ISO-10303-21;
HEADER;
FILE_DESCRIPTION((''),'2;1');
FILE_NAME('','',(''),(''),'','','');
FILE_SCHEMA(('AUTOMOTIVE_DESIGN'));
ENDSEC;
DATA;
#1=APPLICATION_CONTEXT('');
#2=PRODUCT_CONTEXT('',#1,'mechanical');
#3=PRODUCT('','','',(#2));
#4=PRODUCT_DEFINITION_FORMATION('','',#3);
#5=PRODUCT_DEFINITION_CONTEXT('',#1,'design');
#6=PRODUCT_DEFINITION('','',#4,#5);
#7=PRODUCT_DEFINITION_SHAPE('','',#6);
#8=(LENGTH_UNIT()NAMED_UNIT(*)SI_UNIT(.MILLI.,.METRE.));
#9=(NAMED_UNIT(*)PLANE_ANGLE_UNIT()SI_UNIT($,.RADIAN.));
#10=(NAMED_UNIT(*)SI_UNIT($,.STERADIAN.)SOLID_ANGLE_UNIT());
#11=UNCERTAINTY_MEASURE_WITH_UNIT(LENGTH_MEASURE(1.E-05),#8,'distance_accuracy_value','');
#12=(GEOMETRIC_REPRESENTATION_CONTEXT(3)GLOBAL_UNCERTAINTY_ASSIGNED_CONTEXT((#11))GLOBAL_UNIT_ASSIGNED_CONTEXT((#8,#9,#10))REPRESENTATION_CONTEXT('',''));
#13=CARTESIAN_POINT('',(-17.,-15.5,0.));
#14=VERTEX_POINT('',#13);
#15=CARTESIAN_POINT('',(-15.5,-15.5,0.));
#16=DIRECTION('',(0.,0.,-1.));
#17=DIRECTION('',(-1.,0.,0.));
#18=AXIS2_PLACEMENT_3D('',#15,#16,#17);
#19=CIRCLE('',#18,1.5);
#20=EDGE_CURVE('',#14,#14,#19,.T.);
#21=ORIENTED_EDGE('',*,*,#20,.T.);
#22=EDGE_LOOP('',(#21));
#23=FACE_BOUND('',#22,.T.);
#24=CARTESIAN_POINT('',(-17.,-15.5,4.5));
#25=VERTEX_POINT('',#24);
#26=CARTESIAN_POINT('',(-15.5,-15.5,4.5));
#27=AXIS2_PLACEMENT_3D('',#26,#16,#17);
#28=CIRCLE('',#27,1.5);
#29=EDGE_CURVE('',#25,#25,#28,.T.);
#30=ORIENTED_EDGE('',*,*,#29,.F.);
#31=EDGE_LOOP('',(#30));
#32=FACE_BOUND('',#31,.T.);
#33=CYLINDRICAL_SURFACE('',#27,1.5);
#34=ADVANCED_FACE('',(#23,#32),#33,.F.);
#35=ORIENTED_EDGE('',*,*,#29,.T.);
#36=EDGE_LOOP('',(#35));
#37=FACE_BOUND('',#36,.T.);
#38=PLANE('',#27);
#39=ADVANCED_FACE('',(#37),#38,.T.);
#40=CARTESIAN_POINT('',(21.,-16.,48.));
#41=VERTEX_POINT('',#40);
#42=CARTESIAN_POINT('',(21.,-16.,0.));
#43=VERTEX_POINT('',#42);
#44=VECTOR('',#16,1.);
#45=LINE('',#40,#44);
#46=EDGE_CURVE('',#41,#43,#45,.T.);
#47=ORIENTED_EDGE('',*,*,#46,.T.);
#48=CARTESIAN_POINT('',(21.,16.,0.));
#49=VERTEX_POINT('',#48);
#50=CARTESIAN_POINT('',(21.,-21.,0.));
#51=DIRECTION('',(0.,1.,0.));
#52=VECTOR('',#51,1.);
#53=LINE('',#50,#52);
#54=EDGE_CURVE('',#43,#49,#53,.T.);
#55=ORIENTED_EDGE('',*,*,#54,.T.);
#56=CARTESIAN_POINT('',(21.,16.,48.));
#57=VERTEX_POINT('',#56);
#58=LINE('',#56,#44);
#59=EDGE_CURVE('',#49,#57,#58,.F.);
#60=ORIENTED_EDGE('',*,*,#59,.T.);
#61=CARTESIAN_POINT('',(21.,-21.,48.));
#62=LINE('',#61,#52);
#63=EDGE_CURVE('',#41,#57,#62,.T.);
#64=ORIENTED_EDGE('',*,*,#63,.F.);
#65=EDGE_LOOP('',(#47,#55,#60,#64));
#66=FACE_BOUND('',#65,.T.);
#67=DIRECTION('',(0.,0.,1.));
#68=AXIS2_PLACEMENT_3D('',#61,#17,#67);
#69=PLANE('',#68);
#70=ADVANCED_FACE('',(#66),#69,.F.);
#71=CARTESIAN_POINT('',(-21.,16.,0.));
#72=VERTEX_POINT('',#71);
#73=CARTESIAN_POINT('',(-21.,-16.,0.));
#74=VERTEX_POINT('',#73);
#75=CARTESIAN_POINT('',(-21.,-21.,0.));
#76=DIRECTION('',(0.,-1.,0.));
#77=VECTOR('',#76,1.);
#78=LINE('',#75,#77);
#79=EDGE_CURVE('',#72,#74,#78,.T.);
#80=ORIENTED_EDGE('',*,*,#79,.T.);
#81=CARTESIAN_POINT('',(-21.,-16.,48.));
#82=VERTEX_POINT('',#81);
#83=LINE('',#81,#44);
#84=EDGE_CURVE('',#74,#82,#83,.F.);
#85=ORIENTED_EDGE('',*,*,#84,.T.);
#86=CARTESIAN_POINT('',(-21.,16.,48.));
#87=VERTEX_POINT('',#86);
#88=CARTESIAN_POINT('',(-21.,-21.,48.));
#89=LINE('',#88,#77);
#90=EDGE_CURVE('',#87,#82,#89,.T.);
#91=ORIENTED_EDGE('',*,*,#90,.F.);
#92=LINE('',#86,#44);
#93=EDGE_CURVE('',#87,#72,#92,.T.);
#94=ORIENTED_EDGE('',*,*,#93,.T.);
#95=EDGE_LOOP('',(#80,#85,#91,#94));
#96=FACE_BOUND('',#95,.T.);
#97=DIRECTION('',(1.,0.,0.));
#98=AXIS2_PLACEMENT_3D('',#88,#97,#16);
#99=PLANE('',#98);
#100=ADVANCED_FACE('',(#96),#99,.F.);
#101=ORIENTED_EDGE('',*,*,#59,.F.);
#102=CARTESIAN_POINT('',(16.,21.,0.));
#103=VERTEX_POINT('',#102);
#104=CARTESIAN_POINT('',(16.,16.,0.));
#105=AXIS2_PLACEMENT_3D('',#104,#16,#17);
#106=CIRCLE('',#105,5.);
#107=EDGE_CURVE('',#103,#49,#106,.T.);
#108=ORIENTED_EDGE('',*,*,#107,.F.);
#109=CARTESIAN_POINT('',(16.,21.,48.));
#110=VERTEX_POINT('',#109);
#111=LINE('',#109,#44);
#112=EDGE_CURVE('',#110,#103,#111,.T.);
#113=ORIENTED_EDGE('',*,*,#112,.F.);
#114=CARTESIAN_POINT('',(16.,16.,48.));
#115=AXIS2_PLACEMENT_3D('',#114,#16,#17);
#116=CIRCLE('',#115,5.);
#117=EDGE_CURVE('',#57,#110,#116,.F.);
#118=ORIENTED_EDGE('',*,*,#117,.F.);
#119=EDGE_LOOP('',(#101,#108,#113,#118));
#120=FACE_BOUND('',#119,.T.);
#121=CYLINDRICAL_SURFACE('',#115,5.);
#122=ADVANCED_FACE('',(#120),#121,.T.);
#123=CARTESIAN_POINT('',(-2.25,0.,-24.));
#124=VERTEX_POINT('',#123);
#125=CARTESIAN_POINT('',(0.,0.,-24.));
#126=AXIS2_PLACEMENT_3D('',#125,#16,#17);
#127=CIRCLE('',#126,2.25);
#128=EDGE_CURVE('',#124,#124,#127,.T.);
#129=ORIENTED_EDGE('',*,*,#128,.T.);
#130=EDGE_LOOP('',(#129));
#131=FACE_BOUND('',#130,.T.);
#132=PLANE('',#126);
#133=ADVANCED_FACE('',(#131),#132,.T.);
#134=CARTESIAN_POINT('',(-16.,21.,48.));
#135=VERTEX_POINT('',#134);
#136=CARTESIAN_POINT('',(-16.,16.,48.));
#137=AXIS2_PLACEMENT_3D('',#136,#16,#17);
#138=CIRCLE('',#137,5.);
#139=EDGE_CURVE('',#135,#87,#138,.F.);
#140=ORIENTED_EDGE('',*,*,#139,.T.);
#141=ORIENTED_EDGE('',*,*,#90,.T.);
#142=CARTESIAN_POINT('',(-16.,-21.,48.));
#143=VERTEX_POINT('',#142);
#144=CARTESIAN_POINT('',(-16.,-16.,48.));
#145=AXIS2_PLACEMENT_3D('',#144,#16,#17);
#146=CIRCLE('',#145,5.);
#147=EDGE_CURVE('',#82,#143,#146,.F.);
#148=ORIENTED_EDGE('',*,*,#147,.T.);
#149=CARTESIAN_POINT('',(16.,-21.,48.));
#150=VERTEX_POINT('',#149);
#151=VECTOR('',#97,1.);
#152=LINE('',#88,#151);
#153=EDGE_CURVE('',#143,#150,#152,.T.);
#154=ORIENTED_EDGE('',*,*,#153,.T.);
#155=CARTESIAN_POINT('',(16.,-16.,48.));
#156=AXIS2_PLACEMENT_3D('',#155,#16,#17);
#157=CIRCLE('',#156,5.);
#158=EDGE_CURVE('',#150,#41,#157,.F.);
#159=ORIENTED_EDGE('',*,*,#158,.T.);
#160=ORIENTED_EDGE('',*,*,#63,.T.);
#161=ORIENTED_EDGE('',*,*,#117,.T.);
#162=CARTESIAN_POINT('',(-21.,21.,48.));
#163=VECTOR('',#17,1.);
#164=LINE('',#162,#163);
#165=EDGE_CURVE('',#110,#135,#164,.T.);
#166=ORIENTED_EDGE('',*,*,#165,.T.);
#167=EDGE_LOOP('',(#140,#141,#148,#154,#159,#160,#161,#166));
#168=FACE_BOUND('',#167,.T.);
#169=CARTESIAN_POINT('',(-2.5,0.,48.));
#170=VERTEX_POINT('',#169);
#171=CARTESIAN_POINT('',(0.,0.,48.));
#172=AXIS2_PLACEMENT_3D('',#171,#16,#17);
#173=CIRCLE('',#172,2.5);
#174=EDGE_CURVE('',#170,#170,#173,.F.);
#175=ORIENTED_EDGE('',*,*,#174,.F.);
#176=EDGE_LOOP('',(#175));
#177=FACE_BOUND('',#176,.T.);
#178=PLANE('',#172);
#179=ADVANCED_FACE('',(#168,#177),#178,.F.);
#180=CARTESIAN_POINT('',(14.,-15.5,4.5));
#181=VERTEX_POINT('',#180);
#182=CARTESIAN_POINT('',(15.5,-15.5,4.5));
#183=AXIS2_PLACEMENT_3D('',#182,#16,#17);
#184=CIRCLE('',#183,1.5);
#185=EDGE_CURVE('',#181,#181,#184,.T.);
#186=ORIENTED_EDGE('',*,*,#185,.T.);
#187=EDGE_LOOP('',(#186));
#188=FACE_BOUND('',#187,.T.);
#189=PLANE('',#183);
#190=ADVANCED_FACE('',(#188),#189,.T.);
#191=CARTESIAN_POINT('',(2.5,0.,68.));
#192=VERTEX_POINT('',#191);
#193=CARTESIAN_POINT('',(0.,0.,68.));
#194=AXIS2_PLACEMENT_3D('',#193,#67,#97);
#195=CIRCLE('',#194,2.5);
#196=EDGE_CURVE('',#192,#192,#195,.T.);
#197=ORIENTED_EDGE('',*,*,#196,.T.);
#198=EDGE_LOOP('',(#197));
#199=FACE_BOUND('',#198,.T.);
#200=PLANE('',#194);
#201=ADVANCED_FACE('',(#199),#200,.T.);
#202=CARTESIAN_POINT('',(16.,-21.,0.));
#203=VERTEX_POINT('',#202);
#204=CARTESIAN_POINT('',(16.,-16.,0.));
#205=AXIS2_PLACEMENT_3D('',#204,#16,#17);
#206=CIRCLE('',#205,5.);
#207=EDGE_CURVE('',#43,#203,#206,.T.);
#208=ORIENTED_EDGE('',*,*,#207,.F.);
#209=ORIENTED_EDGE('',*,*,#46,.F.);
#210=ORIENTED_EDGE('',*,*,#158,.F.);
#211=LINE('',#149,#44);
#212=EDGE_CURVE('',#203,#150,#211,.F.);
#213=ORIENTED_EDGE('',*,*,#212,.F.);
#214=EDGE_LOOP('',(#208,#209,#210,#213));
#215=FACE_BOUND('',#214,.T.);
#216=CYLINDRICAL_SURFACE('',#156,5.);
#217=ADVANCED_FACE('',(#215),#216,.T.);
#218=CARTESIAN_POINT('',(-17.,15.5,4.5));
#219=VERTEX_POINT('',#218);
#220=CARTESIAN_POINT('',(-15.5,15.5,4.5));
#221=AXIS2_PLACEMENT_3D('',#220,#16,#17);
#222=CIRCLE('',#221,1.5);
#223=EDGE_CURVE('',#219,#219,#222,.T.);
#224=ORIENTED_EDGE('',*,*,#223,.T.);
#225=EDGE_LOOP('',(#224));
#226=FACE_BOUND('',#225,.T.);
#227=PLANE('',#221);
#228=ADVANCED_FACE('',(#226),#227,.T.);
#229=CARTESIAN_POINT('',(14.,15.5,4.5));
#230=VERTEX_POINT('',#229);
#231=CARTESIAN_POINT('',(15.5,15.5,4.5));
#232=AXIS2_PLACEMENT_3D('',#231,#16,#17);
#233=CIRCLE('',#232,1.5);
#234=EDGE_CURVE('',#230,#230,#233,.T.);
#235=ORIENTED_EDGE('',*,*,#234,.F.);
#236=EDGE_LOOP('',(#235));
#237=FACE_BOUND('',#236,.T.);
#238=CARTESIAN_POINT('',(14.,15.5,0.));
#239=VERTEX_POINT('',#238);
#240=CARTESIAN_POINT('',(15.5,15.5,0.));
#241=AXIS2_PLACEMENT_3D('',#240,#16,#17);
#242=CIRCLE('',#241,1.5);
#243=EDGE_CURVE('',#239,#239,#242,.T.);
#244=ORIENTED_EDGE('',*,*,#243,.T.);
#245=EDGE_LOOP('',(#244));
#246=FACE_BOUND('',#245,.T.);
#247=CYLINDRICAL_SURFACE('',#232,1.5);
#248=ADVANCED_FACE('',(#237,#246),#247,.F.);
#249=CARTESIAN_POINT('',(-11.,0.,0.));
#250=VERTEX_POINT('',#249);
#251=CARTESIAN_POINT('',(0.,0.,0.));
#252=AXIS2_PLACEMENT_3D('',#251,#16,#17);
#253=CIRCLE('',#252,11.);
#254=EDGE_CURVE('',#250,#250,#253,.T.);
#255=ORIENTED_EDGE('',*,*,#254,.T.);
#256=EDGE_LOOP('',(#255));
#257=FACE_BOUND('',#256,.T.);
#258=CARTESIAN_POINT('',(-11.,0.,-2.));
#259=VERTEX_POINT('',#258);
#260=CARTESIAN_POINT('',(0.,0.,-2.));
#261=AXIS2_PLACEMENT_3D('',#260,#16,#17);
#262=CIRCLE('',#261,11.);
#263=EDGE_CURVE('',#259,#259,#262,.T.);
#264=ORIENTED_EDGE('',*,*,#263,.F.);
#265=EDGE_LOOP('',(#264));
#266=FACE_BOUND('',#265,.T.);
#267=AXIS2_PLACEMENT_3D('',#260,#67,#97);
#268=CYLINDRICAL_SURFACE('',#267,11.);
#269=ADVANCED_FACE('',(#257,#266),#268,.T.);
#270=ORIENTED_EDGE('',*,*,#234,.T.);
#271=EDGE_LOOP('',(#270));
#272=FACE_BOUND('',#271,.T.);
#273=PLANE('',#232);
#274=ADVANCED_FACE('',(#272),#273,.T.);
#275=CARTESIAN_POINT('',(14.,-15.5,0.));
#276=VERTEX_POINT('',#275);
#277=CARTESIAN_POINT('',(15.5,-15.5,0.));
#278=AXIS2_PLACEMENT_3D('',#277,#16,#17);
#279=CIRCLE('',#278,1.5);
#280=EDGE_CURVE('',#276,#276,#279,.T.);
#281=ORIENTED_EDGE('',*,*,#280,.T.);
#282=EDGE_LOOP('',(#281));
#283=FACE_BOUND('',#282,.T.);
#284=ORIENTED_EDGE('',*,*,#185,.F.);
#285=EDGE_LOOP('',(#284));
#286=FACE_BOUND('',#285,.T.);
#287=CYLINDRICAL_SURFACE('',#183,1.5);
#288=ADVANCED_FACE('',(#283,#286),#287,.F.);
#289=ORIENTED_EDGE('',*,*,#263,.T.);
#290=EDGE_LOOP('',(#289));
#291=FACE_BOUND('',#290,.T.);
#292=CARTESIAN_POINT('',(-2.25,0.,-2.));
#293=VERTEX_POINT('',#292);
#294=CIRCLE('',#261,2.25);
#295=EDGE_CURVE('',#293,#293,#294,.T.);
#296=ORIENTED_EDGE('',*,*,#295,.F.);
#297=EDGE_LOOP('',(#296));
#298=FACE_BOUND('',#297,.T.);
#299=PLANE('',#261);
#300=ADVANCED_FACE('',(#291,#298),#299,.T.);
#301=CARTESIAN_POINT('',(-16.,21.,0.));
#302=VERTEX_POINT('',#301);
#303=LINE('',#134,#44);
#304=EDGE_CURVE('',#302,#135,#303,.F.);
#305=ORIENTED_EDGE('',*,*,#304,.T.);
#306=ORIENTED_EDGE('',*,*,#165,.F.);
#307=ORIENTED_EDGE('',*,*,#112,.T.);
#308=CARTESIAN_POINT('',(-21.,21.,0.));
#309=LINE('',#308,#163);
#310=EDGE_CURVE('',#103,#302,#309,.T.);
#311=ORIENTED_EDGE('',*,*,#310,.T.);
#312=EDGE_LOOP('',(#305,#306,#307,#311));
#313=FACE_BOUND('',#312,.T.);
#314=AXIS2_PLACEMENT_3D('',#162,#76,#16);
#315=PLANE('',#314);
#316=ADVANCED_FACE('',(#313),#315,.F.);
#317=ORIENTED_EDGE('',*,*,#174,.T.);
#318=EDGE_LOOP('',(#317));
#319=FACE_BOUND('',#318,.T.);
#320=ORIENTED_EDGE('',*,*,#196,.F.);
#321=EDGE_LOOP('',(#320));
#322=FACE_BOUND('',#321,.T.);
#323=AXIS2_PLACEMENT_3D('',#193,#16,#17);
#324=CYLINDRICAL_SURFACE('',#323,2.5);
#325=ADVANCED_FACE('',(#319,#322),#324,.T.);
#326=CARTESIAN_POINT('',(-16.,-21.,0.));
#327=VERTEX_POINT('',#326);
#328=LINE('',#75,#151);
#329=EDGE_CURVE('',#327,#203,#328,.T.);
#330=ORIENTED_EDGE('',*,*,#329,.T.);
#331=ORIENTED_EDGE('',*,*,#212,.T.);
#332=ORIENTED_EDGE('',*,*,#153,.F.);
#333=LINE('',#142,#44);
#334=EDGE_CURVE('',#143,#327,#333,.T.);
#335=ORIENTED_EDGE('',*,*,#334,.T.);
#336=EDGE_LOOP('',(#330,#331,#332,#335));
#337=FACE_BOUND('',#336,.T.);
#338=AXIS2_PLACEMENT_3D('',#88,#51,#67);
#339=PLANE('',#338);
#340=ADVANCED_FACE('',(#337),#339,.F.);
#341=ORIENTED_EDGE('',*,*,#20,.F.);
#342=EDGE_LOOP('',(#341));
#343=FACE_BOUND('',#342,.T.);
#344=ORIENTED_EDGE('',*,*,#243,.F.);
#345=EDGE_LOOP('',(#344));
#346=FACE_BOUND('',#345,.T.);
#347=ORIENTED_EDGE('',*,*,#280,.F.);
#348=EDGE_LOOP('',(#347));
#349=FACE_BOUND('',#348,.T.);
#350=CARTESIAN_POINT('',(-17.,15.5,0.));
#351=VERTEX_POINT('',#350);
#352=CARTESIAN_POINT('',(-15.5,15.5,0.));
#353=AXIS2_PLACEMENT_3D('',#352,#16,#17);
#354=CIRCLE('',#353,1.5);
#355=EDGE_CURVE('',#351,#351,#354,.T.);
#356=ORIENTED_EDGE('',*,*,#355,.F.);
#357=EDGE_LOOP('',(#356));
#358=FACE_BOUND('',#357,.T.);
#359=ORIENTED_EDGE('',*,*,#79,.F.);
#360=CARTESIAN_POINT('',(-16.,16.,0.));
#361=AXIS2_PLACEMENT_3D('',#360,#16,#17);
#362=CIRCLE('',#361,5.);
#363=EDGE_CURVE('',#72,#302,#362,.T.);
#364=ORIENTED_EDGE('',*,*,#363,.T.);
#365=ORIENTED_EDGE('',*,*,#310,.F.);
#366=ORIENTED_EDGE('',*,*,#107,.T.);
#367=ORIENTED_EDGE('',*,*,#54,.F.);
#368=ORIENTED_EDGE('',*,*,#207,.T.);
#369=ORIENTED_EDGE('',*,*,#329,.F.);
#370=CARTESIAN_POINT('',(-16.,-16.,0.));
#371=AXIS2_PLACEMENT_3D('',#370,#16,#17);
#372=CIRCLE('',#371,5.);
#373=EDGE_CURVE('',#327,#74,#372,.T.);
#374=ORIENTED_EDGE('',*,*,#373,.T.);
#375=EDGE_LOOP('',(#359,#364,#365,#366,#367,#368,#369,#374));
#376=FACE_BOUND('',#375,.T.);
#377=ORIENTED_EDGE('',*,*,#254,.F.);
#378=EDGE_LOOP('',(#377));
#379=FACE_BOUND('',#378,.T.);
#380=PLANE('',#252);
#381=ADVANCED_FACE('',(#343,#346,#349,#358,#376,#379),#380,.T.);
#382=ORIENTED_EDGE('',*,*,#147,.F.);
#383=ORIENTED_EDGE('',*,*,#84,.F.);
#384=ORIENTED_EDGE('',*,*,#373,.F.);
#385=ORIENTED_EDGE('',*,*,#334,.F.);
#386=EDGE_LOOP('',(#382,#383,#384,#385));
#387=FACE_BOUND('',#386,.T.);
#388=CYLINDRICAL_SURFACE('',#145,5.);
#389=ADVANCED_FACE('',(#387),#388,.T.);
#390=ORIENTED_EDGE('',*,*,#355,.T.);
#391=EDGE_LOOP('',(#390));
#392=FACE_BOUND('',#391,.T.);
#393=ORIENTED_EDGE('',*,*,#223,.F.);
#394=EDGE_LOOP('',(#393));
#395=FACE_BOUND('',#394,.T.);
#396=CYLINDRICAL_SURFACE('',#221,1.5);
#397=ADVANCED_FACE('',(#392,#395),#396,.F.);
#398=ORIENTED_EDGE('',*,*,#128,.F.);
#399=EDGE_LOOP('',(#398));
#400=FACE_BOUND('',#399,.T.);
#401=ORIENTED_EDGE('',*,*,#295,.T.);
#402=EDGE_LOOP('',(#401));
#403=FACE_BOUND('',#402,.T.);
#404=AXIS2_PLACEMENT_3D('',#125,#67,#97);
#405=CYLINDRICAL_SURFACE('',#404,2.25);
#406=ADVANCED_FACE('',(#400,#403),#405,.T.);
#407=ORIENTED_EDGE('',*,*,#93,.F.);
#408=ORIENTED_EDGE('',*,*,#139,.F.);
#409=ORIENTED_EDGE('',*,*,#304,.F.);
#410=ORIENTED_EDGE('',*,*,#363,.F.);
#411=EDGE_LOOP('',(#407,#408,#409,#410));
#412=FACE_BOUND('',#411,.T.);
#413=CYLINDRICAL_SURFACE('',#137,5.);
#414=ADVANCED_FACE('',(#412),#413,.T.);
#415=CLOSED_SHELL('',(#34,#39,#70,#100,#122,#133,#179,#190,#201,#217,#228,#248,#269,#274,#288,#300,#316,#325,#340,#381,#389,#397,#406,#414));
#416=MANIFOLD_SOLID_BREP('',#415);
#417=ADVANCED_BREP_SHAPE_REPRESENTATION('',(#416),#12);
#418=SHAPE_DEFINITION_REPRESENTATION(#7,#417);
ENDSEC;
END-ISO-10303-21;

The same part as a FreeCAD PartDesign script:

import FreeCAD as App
import Part
import Sketcher
from FreeCAD import Vector


def edges_at(feature, points):
    """Names of the edges that pass closest to the given points."""
    edges = feature.Shape.Edges
    near = lambda p: min(range(len(edges)), key=lambda i: edges[i].distToShape(Part.Vertex(*p))[0])
    return sorted({f"Edge{near(p) + 1}" for p in points})


def add_polygon(sketch, points):
    """Adds a closed chain of lines whose ends are joined by coincident constraints."""
    first, n = sketch.GeometryCount, len(points)
    for a, b in zip(points, points[1:] + points[:1]):
        sketch.addGeometry(Part.LineSegment(App.Vector(*a, 0), App.Vector(*b, 0)), False)
    for i in range(n):
        sketch.addConstraint(Sketcher.Constraint("Coincident", first + i, 2, first + (i + 1) % n, 1))

doc = App.newDocument("Part")
params = doc.addObject("Spreadsheet::Sheet", "Params")
for row, (alias, value) in enumerate([
    ("sketch1_width", "42 mm"),
    ("pad1_length", "48 mm"),
    ("sketch2_diameter", "22 mm"),
    ("pad2_length", "2 mm"),
    ("sketch3_diameter", "4.5 mm"),
    ("pad3_length", "22 mm"),
    ("sketch4_diameter", "3 mm"),
    ("pocket1_length", "4.5 mm"),
    ("fillet_radius", "5 mm"),
    ("sketch5_diameter", "5 mm"),
    ("pad4_length", "20 mm"),
], start=1):
    params.set(f"A{row}", alias)
    params.set(f"B{row}", "=" + value)
    params.setAlias(f"B{row}", alias)

body = doc.addObject("PartDesign::Body", "Body")

sketch1 = doc.addObject("Sketcher::SketchObject", "Sketch")
body.addObject(sketch1)
sketch1.AttachmentSupport = (doc.XY_Plane, [""])
sketch1.MapMode = "FlatFace"
add_polygon(sketch1, [(-21, 21), (-21, -21), (21, -21), (21, 21)])
sketch1.addConstraint([
    Sketcher.Constraint("Vertical", 0),
    Sketcher.Constraint("Horizontal", 1),
    Sketcher.Constraint("Vertical", 2),
    Sketcher.Constraint("Horizontal", 3),
    Sketcher.Constraint("Symmetric", 0, 2, 2, 2, -1, 1),
    Sketcher.Constraint("Equal", 3, 0),
    Sketcher.Constraint("DistanceX", 1, 1, 1, 2, 42.0),
])
sketch1.setExpression("Constraints[10]", "Params.sketch1_width")
pad1 = doc.addObject("PartDesign::Pad", "Pad")
body.addObject(pad1)
pad1.Profile = sketch1
pad1.setExpression("Length", "Params.pad1_length")

sketch2 = doc.addObject("Sketcher::SketchObject", "Sketch001")
body.addObject(sketch2)
sketch2.AttachmentSupport = (doc.XY_Plane, [""])
sketch2.MapMode = "FlatFace"
sketch2.addGeometry(Part.Circle(Vector(0, 0, 0), Vector(0, 0, 1), 11), False)
sketch2.addConstraint([
    Sketcher.Constraint("Coincident", 0, 3, -1, 1),
    Sketcher.Constraint("Diameter", 0, 22.0),
])
sketch2.setExpression("Constraints[1]", "Params.sketch2_diameter")
pad2 = doc.addObject("PartDesign::Pad", "Pad001")
body.addObject(pad2)
pad2.Profile = sketch2
pad2.setExpression("Length", "Params.pad2_length")
pad2.Reversed = True

sketch3 = doc.addObject("Sketcher::SketchObject", "Sketch002")
body.addObject(sketch3)
sketch3.AttachmentSupport = (doc.XY_Plane, [""])
sketch3.MapMode = "FlatFace"
sketch3.AttachmentOffset = App.Placement(Vector(0, 0, -2), App.Rotation())
sketch3.addGeometry(Part.Circle(Vector(0, 0, 0), Vector(0, 0, 1), 2.2), False)
sketch3.addConstraint([
    Sketcher.Constraint("Coincident", 0, 3, -1, 1),
    Sketcher.Constraint("Diameter", 0, 4.5),
])
sketch3.setExpression("Constraints[1]", "Params.sketch3_diameter")
pad3 = doc.addObject("PartDesign::Pad", "Pad002")
body.addObject(pad3)
pad3.Profile = sketch3
pad3.setExpression("Length", "Params.pad3_length")
pad3.Reversed = True

sketch4 = doc.addObject("Sketcher::SketchObject", "Sketch003")
body.addObject(sketch4)
sketch4.AttachmentSupport = (doc.XY_Plane, [""])
sketch4.MapMode = "FlatFace"
sketch4.addGeometry([
    Part.Circle(Vector(15.5, 15.5, 0), Vector(0, 0, 1), 1.5),
    Part.Circle(Vector(-15.5, 15.5, 0), Vector(0, 0, 1), 1.5),
    Part.Circle(Vector(-15.5, -15.5, 0), Vector(0, 0, 1), 1.5),
    Part.Circle(Vector(15.5, -15.5, 0), Vector(0, 0, 1), 1.5),
], False)
sketch4.addConstraint([
    Sketcher.Constraint("Equal", 0, 1),
    Sketcher.Constraint("Equal", 1, 2),
    Sketcher.Constraint("Equal", 2, 3),
    Sketcher.Constraint("Symmetric", 0, 3, 2, 3, -1, 1),
    Sketcher.Constraint("Symmetric", 1, 3, 3, 3, -1, 1),
    Sketcher.Constraint("Symmetric", 0, 3, 1, 3, -2),
    Sketcher.Constraint("Diameter", 0, 3.0),
    Sketcher.Constraint("DistanceX", 1, 3, 0, 3, 31.0),
    Sketcher.Constraint("DistanceY", 2, 3, 1, 3, 31.0),
])
sketch4.setExpression("Constraints[6]", "Params.sketch4_diameter")
pocket1 = doc.addObject("PartDesign::Pocket", "Pocket")
body.addObject(pocket1)
pocket1.Profile = sketch4
pocket1.setExpression("Length", "Params.pocket1_length")
pocket1.Reversed = True
doc.recompute()

fillet = doc.addObject("PartDesign::Fillet", "Fillet")
body.addObject(fillet)
fillet.Base = (pocket1, edges_at(pocket1, [
    (21, -21, 24),
    (-21, -21, 24),
    (-21, 21, 24),
    (21, 21, 24),
]))
fillet.setExpression("Radius", "Params.fillet_radius")

sketch5 = doc.addObject("Sketcher::SketchObject", "Sketch004")
body.addObject(sketch5)
sketch5.AttachmentSupport = (doc.XY_Plane, [""])
sketch5.MapMode = "FlatFace"
sketch5.AttachmentOffset = App.Placement(Vector(0, 0, 48), App.Rotation())
sketch5.addGeometry(Part.Circle(Vector(0, 0, 0), Vector(0, 0, 1), 2.5), False)
sketch5.addConstraint([
    Sketcher.Constraint("Coincident", 0, 3, -1, 1),
    Sketcher.Constraint("Diameter", 0, 5.0),
])
sketch5.setExpression("Constraints[1]", "Params.sketch5_diameter")
pad4 = doc.addObject("PartDesign::Pad", "Pad003")
body.addObject(pad4)
pad4.Profile = sketch5
pad4.setExpression("Length", "Params.pad4_length")

doc.recompute()
